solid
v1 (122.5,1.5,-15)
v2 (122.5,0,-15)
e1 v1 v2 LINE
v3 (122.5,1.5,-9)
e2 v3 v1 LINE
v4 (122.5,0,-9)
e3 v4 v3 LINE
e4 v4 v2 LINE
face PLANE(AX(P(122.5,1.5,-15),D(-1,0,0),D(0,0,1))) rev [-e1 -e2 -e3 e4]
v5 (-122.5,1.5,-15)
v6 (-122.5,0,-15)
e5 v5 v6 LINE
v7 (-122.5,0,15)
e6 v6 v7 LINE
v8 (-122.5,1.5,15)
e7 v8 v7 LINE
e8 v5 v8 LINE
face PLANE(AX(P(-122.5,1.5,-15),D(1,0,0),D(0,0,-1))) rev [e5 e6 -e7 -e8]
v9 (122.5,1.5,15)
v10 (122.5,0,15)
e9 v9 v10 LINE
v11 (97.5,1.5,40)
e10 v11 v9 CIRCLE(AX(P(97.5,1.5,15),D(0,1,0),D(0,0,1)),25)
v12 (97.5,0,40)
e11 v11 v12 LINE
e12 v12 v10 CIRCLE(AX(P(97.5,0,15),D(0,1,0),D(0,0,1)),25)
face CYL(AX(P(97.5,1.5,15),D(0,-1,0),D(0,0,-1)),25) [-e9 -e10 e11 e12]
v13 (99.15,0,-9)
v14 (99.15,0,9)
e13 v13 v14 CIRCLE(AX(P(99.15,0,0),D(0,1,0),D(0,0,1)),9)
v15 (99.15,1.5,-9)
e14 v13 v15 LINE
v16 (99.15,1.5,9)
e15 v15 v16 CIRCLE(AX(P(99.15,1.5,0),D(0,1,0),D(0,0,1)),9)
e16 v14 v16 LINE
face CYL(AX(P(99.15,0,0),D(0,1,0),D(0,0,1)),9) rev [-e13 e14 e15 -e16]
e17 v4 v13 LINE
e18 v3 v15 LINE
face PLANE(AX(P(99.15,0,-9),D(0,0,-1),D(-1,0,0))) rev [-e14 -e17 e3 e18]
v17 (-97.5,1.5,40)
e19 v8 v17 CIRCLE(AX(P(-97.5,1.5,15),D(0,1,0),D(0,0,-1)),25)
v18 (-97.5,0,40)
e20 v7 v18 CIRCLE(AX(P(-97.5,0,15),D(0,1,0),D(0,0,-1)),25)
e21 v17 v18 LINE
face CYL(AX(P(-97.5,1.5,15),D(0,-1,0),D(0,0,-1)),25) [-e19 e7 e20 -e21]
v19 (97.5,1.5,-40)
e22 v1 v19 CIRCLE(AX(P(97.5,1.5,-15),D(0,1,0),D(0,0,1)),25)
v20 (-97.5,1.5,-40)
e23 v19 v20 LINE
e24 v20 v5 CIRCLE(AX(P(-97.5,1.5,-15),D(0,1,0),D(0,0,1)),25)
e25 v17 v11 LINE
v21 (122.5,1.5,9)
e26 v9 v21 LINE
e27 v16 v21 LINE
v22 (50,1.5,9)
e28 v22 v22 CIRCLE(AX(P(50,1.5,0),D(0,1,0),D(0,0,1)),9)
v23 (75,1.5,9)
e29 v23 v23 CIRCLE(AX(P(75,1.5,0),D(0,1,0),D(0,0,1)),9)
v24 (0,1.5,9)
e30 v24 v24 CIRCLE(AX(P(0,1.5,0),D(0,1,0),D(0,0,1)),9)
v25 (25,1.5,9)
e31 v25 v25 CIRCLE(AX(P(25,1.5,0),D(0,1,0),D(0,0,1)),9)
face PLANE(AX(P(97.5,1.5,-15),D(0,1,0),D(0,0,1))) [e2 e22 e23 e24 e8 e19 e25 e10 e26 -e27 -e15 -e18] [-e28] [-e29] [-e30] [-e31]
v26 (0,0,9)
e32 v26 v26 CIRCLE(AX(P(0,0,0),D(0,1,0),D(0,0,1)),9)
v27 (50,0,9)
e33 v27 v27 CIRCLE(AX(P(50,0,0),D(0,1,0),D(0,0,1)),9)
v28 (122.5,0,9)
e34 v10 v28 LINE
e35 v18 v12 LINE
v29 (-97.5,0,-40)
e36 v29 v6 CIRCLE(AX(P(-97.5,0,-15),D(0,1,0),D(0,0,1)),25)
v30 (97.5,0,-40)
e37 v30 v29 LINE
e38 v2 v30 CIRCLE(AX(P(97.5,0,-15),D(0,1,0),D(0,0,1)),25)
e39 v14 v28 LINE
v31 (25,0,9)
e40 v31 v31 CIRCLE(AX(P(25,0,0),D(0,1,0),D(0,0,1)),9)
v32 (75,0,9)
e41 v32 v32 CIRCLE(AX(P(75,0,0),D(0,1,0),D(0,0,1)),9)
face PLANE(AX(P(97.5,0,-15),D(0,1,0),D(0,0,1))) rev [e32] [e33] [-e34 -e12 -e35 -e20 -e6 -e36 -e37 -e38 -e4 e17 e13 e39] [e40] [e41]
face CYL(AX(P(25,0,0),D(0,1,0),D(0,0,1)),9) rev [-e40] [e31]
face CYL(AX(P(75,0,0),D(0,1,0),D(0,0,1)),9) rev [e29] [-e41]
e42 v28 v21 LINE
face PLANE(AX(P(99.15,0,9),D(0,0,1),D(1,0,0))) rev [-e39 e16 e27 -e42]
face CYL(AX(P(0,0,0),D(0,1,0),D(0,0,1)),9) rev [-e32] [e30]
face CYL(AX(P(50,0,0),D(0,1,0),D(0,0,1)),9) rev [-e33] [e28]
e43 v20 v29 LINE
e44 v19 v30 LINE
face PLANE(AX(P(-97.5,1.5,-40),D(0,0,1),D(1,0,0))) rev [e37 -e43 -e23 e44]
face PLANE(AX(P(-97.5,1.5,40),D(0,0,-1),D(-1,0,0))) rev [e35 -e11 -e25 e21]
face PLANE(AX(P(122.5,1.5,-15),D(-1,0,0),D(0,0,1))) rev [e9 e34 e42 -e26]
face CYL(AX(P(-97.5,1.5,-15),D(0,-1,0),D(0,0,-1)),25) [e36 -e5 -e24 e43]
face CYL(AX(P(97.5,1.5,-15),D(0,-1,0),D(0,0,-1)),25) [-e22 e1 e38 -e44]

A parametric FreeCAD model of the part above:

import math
import FreeCAD as App
import Part
import Sketcher

doc = App.newDocument("Part")
params = doc.addObject("Spreadsheet::Sheet", "Params")
for row, (alias, value) in enumerate([
    ("sketch1_radius", "25 mm"),
    ("sketch1_width", "195 mm"),
    ("sketch1_height", "30 mm"),
    ("pad1_length", "1.5 mm"),
    ("sketch2_diameter", "18 mm"),
    ("sketch2_width", "23.35 mm"),
    ("pocket1_length", "1.5 mm"),
], start=1):
    params.set(f"A{row}", alias)
    params.set(f"B{row}", "=" + value)
    params.setAlias(f"B{row}", alias)

body = doc.addObject("PartDesign::Body", "Body")

# Sketch on XZ plane
sketch1 = body.newObject("Sketcher::SketchObject", "Sketch")
sketch1.AttachmentSupport = (doc.getObject("XZ_Plane"), [""])
sketch1.MapMode = "FlatFace"
sketch1.addGeometry([
    Part.LineSegment(App.Vector(97.5, -40, 0), App.Vector(-97.5, -40, 0)),  # 0
    Part.ArcOfCircle(Part.Circle(App.Vector(-97.5, -15, 0), App.Vector(0, 0, 1), 25), math.radians(180), math.radians(270)),  # 1
    Part.LineSegment(App.Vector(-122.5, -15, 0), App.Vector(-122.5, 15, 0)),  # 2
    Part.ArcOfCircle(Part.Circle(App.Vector(-97.5, 15, 0), App.Vector(0, 0, 1), 25), math.radians(90), math.radians(180)),  # 3
    Part.LineSegment(App.Vector(-97.5, 40, 0), App.Vector(97.5, 40, 0)),  # 4
    Part.ArcOfCircle(Part.Circle(App.Vector(97.5, 15, 0), App.Vector(0, 0, 1), 25), math.radians(0), math.radians(90)),  # 5
    Part.LineSegment(App.Vector(122.5, 15, 0), App.Vector(122.5, -15, 0)),  # 6
    Part.ArcOfCircle(Part.Circle(App.Vector(97.5, -15, 0), App.Vector(0, 0, 1), 25), math.radians(-90), math.radians(0)),  # 7
], False)
sketch1.addConstraint([
    Sketcher.Constraint("Tangent", 0, 2, 1, 2),
    Sketcher.Constraint("Tangent", 1, 1, 2, 1),
    Sketcher.Constraint("Tangent", 2, 2, 3, 2),
    Sketcher.Constraint("Tangent", 3, 1, 4, 1),
    Sketcher.Constraint("Tangent", 4, 2, 5, 2),
    Sketcher.Constraint("Tangent", 5, 1, 6, 1),
    Sketcher.Constraint("Tangent", 6, 2, 7, 2),
    Sketcher.Constraint("Tangent", 7, 1, 0, 1),
    Sketcher.Constraint("Horizontal", 0),
    Sketcher.Constraint("Vertical", 2),
    Sketcher.Constraint("Horizontal", 4),
    Sketcher.Constraint("Vertical", 6),
    Sketcher.Constraint("Equal", 1, 3),
    Sketcher.Constraint("Equal", 3, 5),
    Sketcher.Constraint("Equal", 5, 7),
    Sketcher.Constraint("Symmetric", 1, 3, 5, 3, -1, 1),
    Sketcher.Constraint("Radius", 1, 25.0),
    Sketcher.Constraint("DistanceX", 0, 2, 0, 1, 195.0),
    Sketcher.Constraint("DistanceY", 2, 1, 2, 2, 30.0),
])
sketch1.setExpression("Constraints[16]", "Params.sketch1_radius")
sketch1.setExpression("Constraints[17]", "Params.sketch1_width")
sketch1.setExpression("Constraints[18]", "Params.sketch1_height")
pad1 = body.newObject("PartDesign::Pad", "Pad")
pad1.Profile = sketch1
pad1.setExpression("Length", "Params.pad1_length")
pad1.Reversed = True

# Sketch on XZ plane
sketch2 = body.newObject("Sketcher::SketchObject", "Sketch001")
sketch2.AttachmentSupport = (doc.getObject("XZ_Plane"), [""])
sketch2.MapMode = "FlatFace"
sketch2.AttachmentOffset = App.Placement(App.Vector(0, 0, -1.5), App.Rotation())
sketch2.addGeometry([
    Part.Circle(App.Vector(75, 0, 0), App.Vector(0, 0, 1), 9),  # 0
    Part.Circle(App.Vector(50, 0, 0), App.Vector(0, 0, 1), 9),  # 1
    Part.Circle(App.Vector(25, 0, 0), App.Vector(0, 0, 1), 9),  # 2
    Part.Circle(App.Vector(0, 0, 0), App.Vector(0, 0, 1), 9),  # 3
    Part.LineSegment(App.Vector(99.15, 9, 0), App.Vector(122.5, 9, 0)),  # 4
    Part.LineSegment(App.Vector(122.5, 9, 0), App.Vector(122.5, -9, 0)),  # 5
    Part.LineSegment(App.Vector(122.5, -9, 0), App.Vector(99.15, -9, 0)),  # 6
    Part.ArcOfCircle(Part.Circle(App.Vector(99.15, 0, 0), App.Vector(0, 0, 1), 9), math.radians(90), math.radians(270)),  # 7
], False)
sketch2.addConstraint([
    Sketcher.Constraint("Coincident", 4, 2, 5, 1),
    Sketcher.Constraint("Coincident", 5, 2, 6, 1),
    Sketcher.Constraint("Tangent", 6, 2, 7, 2),
    Sketcher.Constraint("Tangent", 7, 1, 4, 1),
    Sketcher.Constraint("Horizontal", 4),
    Sketcher.Constraint("Vertical", 5),
    Sketcher.Constraint("Horizontal", 6),
    Sketcher.Constraint("Coincident", 3, 3, -1, 1),
    Sketcher.Constraint("Equal", 0, 1),
    Sketcher.Constraint("Equal", 1, 2),
    Sketcher.Constraint("Equal", 2, 3),
    Sketcher.Constraint("Equal", 3, 7),
    Sketcher.Constraint("PointOnObject", 0, 3, -1),
    Sketcher.Constraint("PointOnObject", 1, 3, -1),
    Sketcher.Constraint("PointOnObject", 2, 3, -1),
    Sketcher.Constraint("PointOnObject", 7, 3, -1),
    Sketcher.Constraint("Diameter", 0, 18.0),
    Sketcher.Constraint("DistanceX", -1, 1, 0, 3, 75.0),
    Sketcher.Constraint("DistanceX", -1, 1, 1, 3, 50.0),
    Sketcher.Constraint("DistanceX", -1, 1, 2, 3, 25.0),
    Sketcher.Constraint("DistanceX", 4, 1, 4, 2, 23.35),
    Sketcher.Constraint("DistanceX", -1, 1, 4, 2, 122.5),
])
sketch2.setExpression("Constraints[16]", "Params.sketch2_diameter")
sketch2.setExpression("Constraints[20]", "Params.sketch2_width")
pocket1 = body.newObject("PartDesign::Pocket", "Pocket")
pocket1.Profile = sketch2
pocket1.setExpression("Length", "Params.pocket1_length")
pocket1.Reversed = True

doc.recompute()
